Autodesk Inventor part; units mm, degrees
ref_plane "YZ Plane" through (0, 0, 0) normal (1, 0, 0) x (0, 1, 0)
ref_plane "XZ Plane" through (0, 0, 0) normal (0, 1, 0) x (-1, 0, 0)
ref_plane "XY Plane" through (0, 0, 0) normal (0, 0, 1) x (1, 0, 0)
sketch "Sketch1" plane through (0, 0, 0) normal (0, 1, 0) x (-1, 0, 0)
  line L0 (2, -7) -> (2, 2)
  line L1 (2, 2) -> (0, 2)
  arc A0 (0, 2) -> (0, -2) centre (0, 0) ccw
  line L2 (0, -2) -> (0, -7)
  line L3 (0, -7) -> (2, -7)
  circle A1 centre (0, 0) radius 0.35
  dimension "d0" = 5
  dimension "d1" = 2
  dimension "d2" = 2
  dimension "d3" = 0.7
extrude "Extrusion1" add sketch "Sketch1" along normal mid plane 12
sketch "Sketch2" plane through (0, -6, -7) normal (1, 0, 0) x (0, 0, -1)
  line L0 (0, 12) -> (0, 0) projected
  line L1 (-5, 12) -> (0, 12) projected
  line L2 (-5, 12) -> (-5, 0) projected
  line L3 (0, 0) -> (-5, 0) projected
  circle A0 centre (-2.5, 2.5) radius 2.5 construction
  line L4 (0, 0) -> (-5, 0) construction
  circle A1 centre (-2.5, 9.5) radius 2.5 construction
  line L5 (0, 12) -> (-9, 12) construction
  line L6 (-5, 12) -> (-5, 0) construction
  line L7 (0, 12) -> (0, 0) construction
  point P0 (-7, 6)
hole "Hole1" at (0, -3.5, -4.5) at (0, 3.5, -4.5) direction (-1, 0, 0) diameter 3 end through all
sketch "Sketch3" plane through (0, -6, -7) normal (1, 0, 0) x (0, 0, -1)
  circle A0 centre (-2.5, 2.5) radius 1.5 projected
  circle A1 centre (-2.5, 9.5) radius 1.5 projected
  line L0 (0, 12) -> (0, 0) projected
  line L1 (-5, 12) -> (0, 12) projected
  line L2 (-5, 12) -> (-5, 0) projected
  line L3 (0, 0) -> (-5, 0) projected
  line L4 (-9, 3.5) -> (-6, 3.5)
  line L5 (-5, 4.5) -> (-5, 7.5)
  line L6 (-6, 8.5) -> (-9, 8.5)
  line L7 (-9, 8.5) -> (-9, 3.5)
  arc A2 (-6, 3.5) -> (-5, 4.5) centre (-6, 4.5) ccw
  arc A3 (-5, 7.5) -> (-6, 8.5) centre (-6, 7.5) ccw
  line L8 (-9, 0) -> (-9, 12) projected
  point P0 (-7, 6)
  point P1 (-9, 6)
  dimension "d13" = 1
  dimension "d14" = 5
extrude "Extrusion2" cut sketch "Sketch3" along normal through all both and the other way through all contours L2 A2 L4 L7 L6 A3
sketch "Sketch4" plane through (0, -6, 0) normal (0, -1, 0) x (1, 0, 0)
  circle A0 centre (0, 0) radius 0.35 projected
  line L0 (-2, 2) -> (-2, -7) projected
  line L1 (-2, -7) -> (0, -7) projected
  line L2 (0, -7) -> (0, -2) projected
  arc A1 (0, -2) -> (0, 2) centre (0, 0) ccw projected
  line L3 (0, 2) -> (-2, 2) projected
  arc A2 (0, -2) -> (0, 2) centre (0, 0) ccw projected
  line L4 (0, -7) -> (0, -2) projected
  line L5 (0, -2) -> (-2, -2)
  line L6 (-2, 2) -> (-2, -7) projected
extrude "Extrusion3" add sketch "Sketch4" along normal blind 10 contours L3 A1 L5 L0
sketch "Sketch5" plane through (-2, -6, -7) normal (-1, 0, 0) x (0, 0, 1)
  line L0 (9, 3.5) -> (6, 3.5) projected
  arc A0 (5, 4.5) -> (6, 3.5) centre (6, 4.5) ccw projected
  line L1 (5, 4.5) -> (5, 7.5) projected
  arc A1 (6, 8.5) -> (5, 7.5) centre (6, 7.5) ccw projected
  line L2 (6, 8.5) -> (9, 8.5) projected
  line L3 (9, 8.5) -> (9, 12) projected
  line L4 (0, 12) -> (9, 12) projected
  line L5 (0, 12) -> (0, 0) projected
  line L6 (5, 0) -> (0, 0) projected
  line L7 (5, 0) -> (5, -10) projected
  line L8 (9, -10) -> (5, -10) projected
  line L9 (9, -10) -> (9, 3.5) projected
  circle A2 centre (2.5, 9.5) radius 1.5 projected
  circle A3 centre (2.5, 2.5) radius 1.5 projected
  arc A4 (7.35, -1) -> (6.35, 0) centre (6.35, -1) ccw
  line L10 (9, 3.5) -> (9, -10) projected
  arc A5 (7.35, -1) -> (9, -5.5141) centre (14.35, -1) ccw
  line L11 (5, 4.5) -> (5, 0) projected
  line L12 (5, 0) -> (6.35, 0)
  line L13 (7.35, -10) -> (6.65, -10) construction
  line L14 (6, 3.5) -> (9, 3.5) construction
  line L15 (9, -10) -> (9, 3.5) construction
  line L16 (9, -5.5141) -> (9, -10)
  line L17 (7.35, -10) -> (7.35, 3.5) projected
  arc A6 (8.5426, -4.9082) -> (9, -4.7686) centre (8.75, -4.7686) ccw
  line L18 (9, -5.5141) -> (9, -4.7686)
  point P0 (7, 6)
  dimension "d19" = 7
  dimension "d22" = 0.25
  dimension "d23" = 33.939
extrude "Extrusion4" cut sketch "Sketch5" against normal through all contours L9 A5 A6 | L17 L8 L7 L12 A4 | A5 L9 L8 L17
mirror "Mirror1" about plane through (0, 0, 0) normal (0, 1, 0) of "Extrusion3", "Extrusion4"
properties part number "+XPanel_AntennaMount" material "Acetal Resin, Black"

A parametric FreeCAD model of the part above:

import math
import FreeCAD as App
import Part
import Sketcher

V = App.Vector

doc = App.newDocument("Part")
body = doc.addObject("PartDesign::Body", "Body")

# Sketch on XZ plane
sketch1 = body.newObject("Sketcher::SketchObject", "Sketch")
sketch1.AttachmentSupport = (doc.getObject("XZ_Plane"), [""])
sketch1.MapMode = "FlatFace"
sketch1.addGeometry(Part.LineSegment(V(0, -7, 0), V(-2, -7, 0)), False)
sketch1.addGeometry(Part.LineSegment(V(-2, -7, 0), V(-2, 2, 0)), False)
sketch1.addGeometry(Part.LineSegment(V(-2, 2, 0), V(0, 2, 0)), False)
sketch1.addGeometry(Part.ArcOfCircle(Part.Circle(V(0, 0, 0), V(0, 0, 1), 2), math.radians(-90), math.radians(90)), False)
sketch1.addGeometry(Part.LineSegment(V(0, -2, 0), V(0, -7, 0)), False)
sketch1.addGeometry(Part.Circle(V(0, 0, 0), V(0, 0, 1), 0.35), False)
sketch1.addConstraint(Sketcher.Constraint("Coincident", 0, 2, 1, 1))
sketch1.addConstraint(Sketcher.Constraint("Coincident", 1, 2, 2, 1))
sketch1.addConstraint(Sketcher.Constraint("Tangent", 2, 2, 3, 2))
sketch1.addConstraint(Sketcher.Constraint("Coincident", 3, 1, 4, 1))
sketch1.addConstraint(Sketcher.Constraint("Coincident", 4, 2, 0, 1))
sketch1.addConstraint(Sketcher.Constraint("Horizontal", 0))
sketch1.addConstraint(Sketcher.Constraint("Vertical", 1))
sketch1.addConstraint(Sketcher.Constraint("Horizontal", 2))
sketch1.addConstraint(Sketcher.Constraint("Vertical", 4))
sketch1.addConstraint(Sketcher.Constraint("Coincident", 3, 3, -1, 1))
sketch1.addConstraint(Sketcher.Constraint("Coincident", 5, 3, -1, 1))
sketch1.addConstraint(Sketcher.Constraint("PointOnObject", 3, 1, -2))
sketch1.addConstraint(Sketcher.Constraint("Radius", 3, 2.0))
sketch1.addConstraint(Sketcher.Constraint("Diameter", 5, 0.7))
sketch1.addConstraint(Sketcher.Constraint("DistanceX", 0, 2, 0, 1, 2.0))
sketch1.addConstraint(Sketcher.Constraint("DistanceY", 4, 2, 4, 1, 5.0))
pad1 = body.newObject("PartDesign::Pad", "Pad")
pad1.Profile = sketch1
pad1.Length = 12
pad1.Midplane = True

# Sketch on YZ plane
sketch2 = body.newObject("Sketcher::SketchObject", "Sketch001")
sketch2.AttachmentSupport = (doc.getObject("YZ_Plane"), [""])
sketch2.MapMode = "FlatFace"
sketch2.addGeometry(Part.Circle(V(-3.5, -4.5, 0), V(0, 0, 1), 1.5), False)
sketch2.addGeometry(Part.Circle(V(3.5, -4.5, 0), V(0, 0, 1), 1.5), False)
sketch2.addConstraint(Sketcher.Constraint("Equal", 0, 1))
sketch2.addConstraint(Sketcher.Constraint("Symmetric", 0, 3, 1, 3, -2))
sketch2.addConstraint(Sketcher.Constraint("Diameter", 0, 3.0))
sketch2.addConstraint(Sketcher.Constraint("DistanceX", 0, 3, 1, 3, 7.0))
sketch2.addConstraint(Sketcher.Constraint("DistanceY", 0, 3, -1, 1, 4.5))
doc.recompute()
hole = body.newObject("PartDesign::Hole", "Hole")
hole.Profile = sketch2
hole.ThreadType = "None"
hole.Diameter = 3
hole.DepthType = "ThroughAll"

# Sketch on YZ plane
sketch3 = body.newObject("Sketcher::SketchObject", "Sketch002")
sketch3.AttachmentSupport = (doc.getObject("YZ_Plane"), [""])
sketch3.MapMode = "FlatFace"
sketch3.addGeometry(Part.LineSegment(V(-1.5, -2, 0), V(1.5, -2, 0)), False)
sketch3.addGeometry(Part.ArcOfCircle(Part.Circle(V(1.5, -1, 0), V(0, 0, 1), 1), math.radians(-90), math.radians(0)), False)
sketch3.addGeometry(Part.LineSegment(V(2.5, -1, 0), V(2.5, 2, 0)), False)
sketch3.addGeometry(Part.LineSegment(V(2.5, 2, 0), V(-2.5, 2, 0)), False)
sketch3.addGeometry(Part.LineSegment(V(-2.5, 2, 0), V(-2.5, -1, 0)), False)
sketch3.addGeometry(Part.ArcOfCircle(Part.Circle(V(-1.5, -1, 0), V(0, 0, 1), 1), math.radians(180), math.radians(270)), False)
sketch3.addConstraint(Sketcher.Constraint("Tangent", 0, 2, 1, 1))
sketch3.addConstraint(Sketcher.Constraint("Tangent", 1, 2, 2, 1))
sketch3.addConstraint(Sketcher.Constraint("Coincident", 2, 2, 3, 1))
sketch3.addConstraint(Sketcher.Constraint("Coincident", 3, 2, 4, 1))
sketch3.addConstraint(Sketcher.Constraint("Tangent", 4, 2, 5, 1))
sketch3.addConstraint(Sketcher.Constraint("Tangent", 5, 2, 0, 1))
sketch3.addConstraint(Sketcher.Constraint("Horizontal", 0))
sketch3.addConstraint(Sketcher.Constraint("Vertical", 2))
sketch3.addConstraint(Sketcher.Constraint("Horizontal", 3))
sketch3.addConstraint(Sketcher.Constraint("Vertical", 4))
sketch3.addConstraint(Sketcher.Constraint("Equal", 1, 5))
sketch3.addConstraint(Sketcher.Constraint("Equal", 0, 2))
sketch3.addConstraint(Sketcher.Constraint("Radius", 1, 1.0))
sketch3.addConstraint(Sketcher.Constraint("DistanceX", 3, 2, 3, 1, 5.0))
sketch3.addConstraint(Sketcher.Constraint("DistanceY", 1, 3, -1, 1, 1.0))
sketch3.addConstraint(Sketcher.Constraint("DistanceX", -1, 1, 1, 3, 1.5))
pocket1 = body.newObject("PartDesign::Pocket", "Pocket")
pocket1.Profile = sketch3
pocket1.Type = "ThroughAll"
pocket1.Midplane = True

# Sketch on XZ plane
sketch4 = body.newObject("Sketcher::SketchObject", "Sketch003")
sketch4.AttachmentSupport = (doc.getObject("XZ_Plane"), [""])
sketch4.MapMode = "FlatFace"
sketch4.AttachmentOffset = App.Placement(V(0, 0, 6), App.Rotation())
sketch4.addGeometry(Part.LineSegment(V(0, 2, 0), V(-2, 2, 0)), False)
sketch4.addGeometry(Part.LineSegment(V(-2, 2, 0), V(-2, -2, 0)), False)
sketch4.addGeometry(Part.LineSegment(V(-2, -2, 0), V(0, -2, 0)), False)
sketch4.addGeometry(Part.ArcOfCircle(Part.Circle(V(0, 0, 0), V(0, 0, 1), 2), math.radians(-90), math.radians(90)), False)
sketch4.addGeometry(Part.Circle(V(0, 0, 0), V(0, 0, 1), 0.35), False)
sketch4.addConstraint(Sketcher.Constraint("Coincident", 0, 2, 1, 1))
sketch4.addConstraint(Sketcher.Constraint("Coincident", 1, 2, 2, 1))
sketch4.addConstraint(Sketcher.Constraint("Tangent", 2, 2, 3, 1))
sketch4.addConstraint(Sketcher.Constraint("Tangent", 3, 2, 0, 1))
sketch4.addConstraint(Sketcher.Constraint("Horizontal", 0))
sketch4.addConstraint(Sketcher.Constraint("Vertical", 1))
sketch4.addConstraint(Sketcher.Constraint("Horizontal", 2))
sketch4.addConstraint(Sketcher.Constraint("Coincident", 3, 3, -1, 1))
sketch4.addConstraint(Sketcher.Constraint("Coincident", 4, 3, -1, 1))
sketch4.addConstraint(Sketcher.Constraint("Radius", 3, 2.0))
sketch4.addConstraint(Sketcher.Constraint("Diameter", 4, 0.7))
sketch4.addConstraint(Sketcher.Constraint("DistanceX", 0, 2, 0, 1, 2.0))
pad2 = body.newObject("PartDesign::Pad", "Pad001")
pad2.Profile = sketch4
pad2.Length = 10

# Sketch on YZ plane
sketch5 = body.newObject("Sketcher::SketchObject", "Sketch004")
sketch5.AttachmentSupport = (doc.getObject("YZ_Plane"), [""])
sketch5.MapMode = "FlatFace"
sketch5.AttachmentOffset = App.Placement(V(0, 0, -2), App.Rotation())
sketch5.addGeometry(Part.ArcOfCircle(Part.Circle(V(-10.77, 1.75, 0), V(0, 0, 1), 0.25), math.radians(90), math.radians(236)), False)
sketch5.addGeometry(Part.ArcOfCircle(Part.Circle(V(-7, 7.35, 0), V(0, 0, 1), 7), math.radians(-124), math.radians(-90)), False)
sketch5.addGeometry(Part.ArcOfCircle(Part.Circle(V(-7, -0.65, 0), V(0, 0, 1), 1), math.radians(0), math.radians(90)), False)
sketch5.addGeometry(Part.LineSegment(V(-6, -0.65, 0), V(-6, -2, 0)), False)
sketch5.addGeometry(Part.LineSegment(V(-6, -2, 0), V(-16, -2, 0)), False)
sketch5.addGeometry(Part.LineSegment(V(-16, -2, 0), V(-16, 2, 0)), False)
sketch5.addGeometry(Part.LineSegment(V(-16, 2, 0), V(-10.77, 2, 0)), False)
sketch5.addConstraint(Sketcher.Constraint("Tangent", 0, 2, 1, 1))
sketch5.addConstraint(Sketcher.Constraint("Tangent", 1, 2, 2, 2))
sketch5.addConstraint(Sketcher.Constraint("Tangent", 2, 1, 3, 1))
sketch5.addConstraint(Sketcher.Constraint("Coincident", 3, 2, 4, 1))
sketch5.addConstraint(Sketcher.Constraint("Coincident", 4, 2, 5, 1))
sketch5.addConstraint(Sketcher.Constraint("Coincident", 5, 2, 6, 1))
sketch5.addConstraint(Sketcher.Constraint("Tangent", 6, 2, 0, 1))
sketch5.addConstraint(Sketcher.Constraint("Vertical", 3))
sketch5.addConstraint(Sketcher.Constraint("Horizontal", 4))
sketch5.addConstraint(Sketcher.Constraint("Vertical", 5))
sketch5.addConstraint(Sketcher.Constraint("Horizontal", 6))
sketch5.addConstraint(Sketcher.Constraint("Vertical", 1, 3, 2, 3))
sketch5.addConstraint(Sketcher.Constraint("Radius", 1, 7.0))
sketch5.addConstraint(Sketcher.Constraint("Radius", 0, 0.25))
sketch5.addConstraint(Sketcher.Constraint("DistanceX", 1, 3, -1, 1, 7.0))
sketch5.addConstraint(Sketcher.Constraint("Radius", 2, 1.0))
sketch5.addConstraint(Sketcher.Constraint("DistanceX", 4, 2, 4, 1, 10.0))
sketch5.addConstraint(Sketcher.Constraint("DistanceY", 5, 1, 5, 2, 4.0))
sketch5.addConstraint(Sketcher.Constraint("DistanceY", 3, 2, -1, 1, 2.0))
sketch5.addConstraint(Sketcher.Constraint("DistanceY", 3, 2, 3, 1, 1.35))
pocket2 = body.newObject("PartDesign::Pocket", "Pocket001")
pocket2.Profile = sketch5
pocket2.Type = "ThroughAll"
pocket2.Reversed = True
doc.recompute()

mirrored = body.newObject("PartDesign::Mirrored", "Mirrored")
mirrored.Originals = [pad2, pocket2]
mirrored.MirrorPlane = (doc.getObject("XZ_Plane"), [""])
body.Tip = mirrored

doc.recompute()
